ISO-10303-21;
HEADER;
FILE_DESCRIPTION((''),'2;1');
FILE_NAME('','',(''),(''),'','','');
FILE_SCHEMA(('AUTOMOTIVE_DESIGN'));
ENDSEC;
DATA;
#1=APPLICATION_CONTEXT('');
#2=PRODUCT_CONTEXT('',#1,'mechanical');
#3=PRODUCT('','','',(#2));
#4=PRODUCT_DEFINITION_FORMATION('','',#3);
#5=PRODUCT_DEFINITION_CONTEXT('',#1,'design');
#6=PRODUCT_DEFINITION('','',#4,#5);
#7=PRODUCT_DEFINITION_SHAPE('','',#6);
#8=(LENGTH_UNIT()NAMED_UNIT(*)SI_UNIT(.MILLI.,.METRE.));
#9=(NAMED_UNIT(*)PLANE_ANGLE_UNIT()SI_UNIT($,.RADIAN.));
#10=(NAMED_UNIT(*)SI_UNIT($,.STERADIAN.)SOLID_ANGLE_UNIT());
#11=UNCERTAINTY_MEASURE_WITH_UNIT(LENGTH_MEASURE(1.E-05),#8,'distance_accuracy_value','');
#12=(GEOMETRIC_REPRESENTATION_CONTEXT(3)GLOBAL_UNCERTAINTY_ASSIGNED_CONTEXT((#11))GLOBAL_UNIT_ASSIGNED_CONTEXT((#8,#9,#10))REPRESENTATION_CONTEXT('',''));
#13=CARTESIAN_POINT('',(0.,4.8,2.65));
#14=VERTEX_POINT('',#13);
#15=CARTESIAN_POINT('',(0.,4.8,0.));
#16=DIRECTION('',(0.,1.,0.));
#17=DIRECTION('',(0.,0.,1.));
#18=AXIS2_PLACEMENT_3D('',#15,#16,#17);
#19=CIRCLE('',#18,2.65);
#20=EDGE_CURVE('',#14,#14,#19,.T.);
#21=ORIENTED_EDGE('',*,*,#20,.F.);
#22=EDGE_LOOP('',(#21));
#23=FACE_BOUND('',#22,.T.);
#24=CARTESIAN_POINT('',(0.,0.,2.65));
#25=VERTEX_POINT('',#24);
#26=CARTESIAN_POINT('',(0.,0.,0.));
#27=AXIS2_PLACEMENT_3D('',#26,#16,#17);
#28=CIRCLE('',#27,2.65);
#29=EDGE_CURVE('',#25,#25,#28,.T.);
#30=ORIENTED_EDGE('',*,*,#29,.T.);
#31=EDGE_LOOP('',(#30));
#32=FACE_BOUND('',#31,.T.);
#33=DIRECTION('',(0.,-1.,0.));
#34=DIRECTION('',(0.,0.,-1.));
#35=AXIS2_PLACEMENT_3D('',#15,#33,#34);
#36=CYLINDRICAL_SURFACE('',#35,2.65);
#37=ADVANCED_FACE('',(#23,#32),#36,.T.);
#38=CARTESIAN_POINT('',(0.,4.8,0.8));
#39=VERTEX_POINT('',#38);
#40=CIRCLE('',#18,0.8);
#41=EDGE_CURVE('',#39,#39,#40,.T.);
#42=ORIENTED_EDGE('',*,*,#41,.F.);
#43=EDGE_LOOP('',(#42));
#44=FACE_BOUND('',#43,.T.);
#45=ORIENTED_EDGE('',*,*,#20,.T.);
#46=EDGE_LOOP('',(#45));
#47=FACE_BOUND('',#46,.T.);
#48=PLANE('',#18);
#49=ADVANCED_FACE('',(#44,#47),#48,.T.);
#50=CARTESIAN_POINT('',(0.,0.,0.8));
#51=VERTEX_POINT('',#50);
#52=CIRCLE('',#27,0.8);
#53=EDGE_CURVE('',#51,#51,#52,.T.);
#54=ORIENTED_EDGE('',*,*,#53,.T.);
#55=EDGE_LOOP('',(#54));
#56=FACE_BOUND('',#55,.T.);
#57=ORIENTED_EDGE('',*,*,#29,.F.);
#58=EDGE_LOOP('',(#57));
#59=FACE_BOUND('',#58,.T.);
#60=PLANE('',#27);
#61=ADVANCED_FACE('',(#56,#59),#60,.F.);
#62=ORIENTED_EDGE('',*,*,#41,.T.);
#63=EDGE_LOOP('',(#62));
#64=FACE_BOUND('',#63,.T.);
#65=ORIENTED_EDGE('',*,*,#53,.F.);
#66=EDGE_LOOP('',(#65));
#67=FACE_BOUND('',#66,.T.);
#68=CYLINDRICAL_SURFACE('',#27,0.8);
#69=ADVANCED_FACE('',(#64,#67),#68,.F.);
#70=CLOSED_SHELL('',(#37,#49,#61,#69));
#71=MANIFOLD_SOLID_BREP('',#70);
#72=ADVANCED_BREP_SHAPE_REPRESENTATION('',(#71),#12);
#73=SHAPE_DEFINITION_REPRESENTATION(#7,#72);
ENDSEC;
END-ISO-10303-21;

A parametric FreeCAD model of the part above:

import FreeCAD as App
import Part
import Sketcher
Q = App.Units.Quantity

doc = App.newDocument("Part")
body = doc.addObject("PartDesign::Body", "Body")

# Sketch on XZ plane
sketch1 = body.newObject("Sketcher::SketchObject", "Sketch")
sketch1.AttachmentSupport = (doc.getObject("XZ_Plane"), [""])
sketch1.MapMode = "FlatFace"
sketch1.addGeometry(Part.Circle(App.Vector(0, 0, 0), App.Vector(0, 0, 1), 2.6), False)
sketch1.addConstraint(Sketcher.Constraint("Coincident", 0, 3, -1, 1))
sketch1.addConstraint(Sketcher.Constraint("Diameter", 0, Q("5.3 mm")))
pad1 = body.newObject("PartDesign::Pad", "Pad")
pad1.Profile = sketch1
pad1.Length = 4.8
pad1.Reversed = True

# Sketch on XZ plane
sketch2 = body.newObject("Sketcher::SketchObject", "Sketch001")
sketch2.AttachmentSupport = (doc.getObject("XZ_Plane"), [""])
sketch2.MapMode = "FlatFace"
sketch2.AttachmentOffset = App.Placement(App.Vector(0, 0, -4.8), App.Rotation())
sketch2.addGeometry(Part.Circle(App.Vector(0, 0, 0), App.Vector(0, 0, 1), 0.8), False)
sketch2.addConstraint(Sketcher.Constraint("Coincident", 0, 3, -1, 1))
sketch2.addConstraint(Sketcher.Constraint("Diameter", 0, Q("1.6 mm")))
pocket1 = body.newObject("PartDesign::Pocket", "Pocket")
pocket1.Profile = sketch2
pocket1.Type = "ThroughAll"
pocket1.Reversed = True

doc.recompute()
